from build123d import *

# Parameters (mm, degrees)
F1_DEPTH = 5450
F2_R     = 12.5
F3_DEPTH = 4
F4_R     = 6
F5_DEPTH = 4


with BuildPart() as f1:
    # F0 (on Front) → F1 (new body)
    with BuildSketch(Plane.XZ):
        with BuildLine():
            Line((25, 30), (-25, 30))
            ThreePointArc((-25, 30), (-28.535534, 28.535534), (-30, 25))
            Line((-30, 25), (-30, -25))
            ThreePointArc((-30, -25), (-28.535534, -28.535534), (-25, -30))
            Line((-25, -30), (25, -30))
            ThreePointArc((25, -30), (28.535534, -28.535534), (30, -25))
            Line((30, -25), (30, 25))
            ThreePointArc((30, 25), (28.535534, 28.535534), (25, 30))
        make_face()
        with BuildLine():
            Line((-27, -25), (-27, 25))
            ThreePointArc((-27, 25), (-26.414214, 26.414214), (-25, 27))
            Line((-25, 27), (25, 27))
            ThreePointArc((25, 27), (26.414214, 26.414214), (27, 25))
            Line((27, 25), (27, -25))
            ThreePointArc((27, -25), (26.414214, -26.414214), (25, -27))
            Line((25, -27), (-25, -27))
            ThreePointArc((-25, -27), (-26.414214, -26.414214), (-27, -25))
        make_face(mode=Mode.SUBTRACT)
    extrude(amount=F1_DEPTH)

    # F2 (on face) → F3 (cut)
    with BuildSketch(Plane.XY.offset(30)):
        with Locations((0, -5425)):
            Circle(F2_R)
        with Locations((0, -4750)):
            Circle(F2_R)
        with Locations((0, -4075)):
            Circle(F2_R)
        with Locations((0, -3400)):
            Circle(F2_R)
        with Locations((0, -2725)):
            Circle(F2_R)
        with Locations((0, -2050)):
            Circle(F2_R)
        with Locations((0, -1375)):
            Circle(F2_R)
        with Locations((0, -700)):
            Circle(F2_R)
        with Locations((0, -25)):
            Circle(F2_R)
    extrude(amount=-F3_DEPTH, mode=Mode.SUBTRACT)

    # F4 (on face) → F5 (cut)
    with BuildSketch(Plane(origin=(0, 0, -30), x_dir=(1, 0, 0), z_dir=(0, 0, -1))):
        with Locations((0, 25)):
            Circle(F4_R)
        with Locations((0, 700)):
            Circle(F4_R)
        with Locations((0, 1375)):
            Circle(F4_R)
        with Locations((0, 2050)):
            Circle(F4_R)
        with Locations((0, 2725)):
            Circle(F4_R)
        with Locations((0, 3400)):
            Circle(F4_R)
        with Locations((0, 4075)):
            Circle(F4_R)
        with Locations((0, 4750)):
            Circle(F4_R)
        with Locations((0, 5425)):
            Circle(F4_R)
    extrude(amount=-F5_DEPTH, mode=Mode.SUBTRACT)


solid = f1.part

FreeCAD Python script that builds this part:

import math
import FreeCAD as App
import Part
import Sketcher
from FreeCAD import Vector

doc = App.newDocument("Part")
params = doc.addObject("Spreadsheet::Sheet", "Params")
for row, (alias, value) in enumerate([
    ("sketch1_radius", "5 mm"),
    ("sketch1_radius2", "1.999999 mm"),
    ("sketch1_width", "50 mm"),
    ("pad1_length", "5450 mm"),
    ("sketch2_diameter", "25 mm"),
    ("pocket1_length", "4 mm"),
    ("sketch3_diameter", "12 mm"),
    ("pocket2_length", "4 mm"),
], start=1):
    params.set(f"A{row}", alias)
    params.set(f"B{row}", "=" + value)
    params.setAlias(f"B{row}", alias)

body = doc.addObject("PartDesign::Body", "Body")

# Sketch on XZ plane
sketch1 = body.newObject("Sketcher::SketchObject", "Sketch")
sketch1.AttachmentSupport = (doc.getObject("XZ_Plane"), [""])
sketch1.MapMode = "FlatFace"
sketch1.addGeometry([
    Part.LineSegment(Vector(25, 30, 0), Vector(-25, 30, 0)),  # 0
    Part.ArcOfCircle(Part.Circle(Vector(-25, 25, 0), Vector(0, 0, 1), 5), math.radians(90), math.radians(180)),  # 1
    Part.LineSegment(Vector(-30, 25, 0), Vector(-30, -25, 0)),  # 2
    Part.ArcOfCircle(Part.Circle(Vector(-25, -25, 0), Vector(0, 0, 1), 5), math.radians(180), math.radians(270)),  # 3
    Part.LineSegment(Vector(-25, -30, 0), Vector(25, -30, 0)),  # 4
    Part.ArcOfCircle(Part.Circle(Vector(25, -25, 0), Vector(0, 0, 1), 5), math.radians(-90), math.radians(0)),  # 5
    Part.LineSegment(Vector(30, -25, 0), Vector(30, 25, 0)),  # 6
    Part.ArcOfCircle(Part.Circle(Vector(25, 25, 0), Vector(0, 0, 1), 5), math.radians(0), math.radians(90)),  # 7
    Part.ArcOfCircle(Part.Circle(Vector(-25, -25, 0), Vector(0, 0, 1), 2), math.radians(180), math.radians(270)),  # 8
    Part.LineSegment(Vector(-27, -25, 0), Vector(-27, 25, 0)),  # 9
    Part.ArcOfCircle(Part.Circle(Vector(-25, 25, 0), Vector(0, 0, 1), 2), math.radians(90), math.radians(180)),  # 10
    Part.LineSegment(Vector(-25, 27, 0), Vector(25, 27, 0)),  # 11
    Part.ArcOfCircle(Part.Circle(Vector(25, 25, 0), Vector(0, 0, 1), 2), math.radians(0), math.radians(90)),  # 12
    Part.LineSegment(Vector(27, 25, 0), Vector(27, -25, 0)),  # 13
    Part.ArcOfCircle(Part.Circle(Vector(25, -25, 0), Vector(0, 0, 1), 2), math.radians(-90), math.radians(0)),  # 14
    Part.LineSegment(Vector(25, -27, 0), Vector(-25, -27, 0)),  # 15
], False)
sketch1.addConstraint([
    Sketcher.Constraint("Tangent", 0, 2, 1, 1),
    Sketcher.Constraint("Tangent", 1, 2, 2, 1),
    Sketcher.Constraint("Tangent", 2, 2, 3, 1),
    Sketcher.Constraint("Tangent", 3, 2, 4, 1),
    Sketcher.Constraint("Tangent", 4, 2, 5, 1),
    Sketcher.Constraint("Tangent", 5, 2, 6, 1),
    Sketcher.Constraint("Tangent", 6, 2, 7, 1),
    Sketcher.Constraint("Tangent", 7, 2, 0, 1),
    Sketcher.Constraint("Tangent", 8, 1, 9, 1),
    Sketcher.Constraint("Tangent", 9, 2, 10, 2),
    Sketcher.Constraint("Tangent", 10, 1, 11, 1),
    Sketcher.Constraint("Tangent", 11, 2, 12, 2),
    Sketcher.Constraint("Tangent", 12, 1, 13, 1),
    Sketcher.Constraint("Tangent", 13, 2, 14, 2),
    Sketcher.Constraint("Tangent", 14, 1, 15, 1),
    Sketcher.Constraint("Tangent", 15, 2, 8, 2),
    Sketcher.Constraint("Horizontal", 0),
    Sketcher.Constraint("Vertical", 2),
    Sketcher.Constraint("Horizontal", 4),
    Sketcher.Constraint("Vertical", 6),
    Sketcher.Constraint("Vertical", 9),
    Sketcher.Constraint("Horizontal", 11),
    Sketcher.Constraint("Vertical", 13),
    Sketcher.Constraint("Horizontal", 15),
    Sketcher.Constraint("Coincident", 8, 3, 3, 3),
    Sketcher.Constraint("Coincident", 10, 3, 1, 3),
    Sketcher.Constraint("Coincident", 12, 3, 7, 3),
    Sketcher.Constraint("Equal", 1, 3),
    Sketcher.Constraint("Equal", 3, 5),
    Sketcher.Constraint("Equal", 5, 7),
    Sketcher.Constraint("Equal", 12, 14),
    Sketcher.Constraint("Symmetric", 1, 3, 5, 3, -1, 1),
    Sketcher.Constraint("Equal", 15, 2),
    Sketcher.Constraint("Radius", 1, 5.0),
    Sketcher.Constraint("Radius", 8, 1.999999),
    Sketcher.Constraint("DistanceX", 0, 2, 0, 1, 50.0),
])
sketch1.setExpression("Constraints[33]", "Params.sketch1_radius")
sketch1.setExpression("Constraints[34]", "Params.sketch1_radius2")
sketch1.setExpression("Constraints[35]", "Params.sketch1_width")
pad1 = body.newObject("PartDesign::Pad", "Pad")
pad1.Profile = sketch1
pad1.setExpression("Length", "Params.pad1_length")

# Sketch on XY plane
sketch2 = body.newObject("Sketcher::SketchObject", "Sketch001")
sketch2.AttachmentSupport = (doc.getObject("XY_Plane"), [""])
sketch2.MapMode = "FlatFace"
sketch2.AttachmentOffset = App.Placement(Vector(0, 0, 30), App.Rotation())
sketch2.addGeometry([
    Part.Circle(Vector(0, -5425, 0), Vector(0, 0, 1), 12),  # 0
    Part.Circle(Vector(0, -4750, 0), Vector(0, 0, 1), 12),  # 1
    Part.Circle(Vector(0, -4075, 0), Vector(0, 0, 1), 12),  # 2
    Part.Circle(Vector(0, -3400, 0), Vector(0, 0, 1), 12),  # 3
    Part.Circle(Vector(0, -2725, 0), Vector(0, 0, 1), 12),  # 4
    Part.Circle(Vector(0, -2050, 0), Vector(0, 0, 1), 12),  # 5
    Part.Circle(Vector(0, -1375, 0), Vector(0, 0, 1), 12),  # 6
    Part.Circle(Vector(0, -700, 0), Vector(0, 0, 1), 12),  # 7
    Part.Circle(Vector(0, -25, 0), Vector(0, 0, 1), 12),  # 8
], False)
sketch2.addConstraint([
    Sketcher.Constraint("Equal", 0, 1),
    Sketcher.Constraint("Equal", 1, 2),
    Sketcher.Constraint("Equal", 2, 3),
    Sketcher.Constraint("Equal", 3, 4),
    Sketcher.Constraint("Equal", 4, 5),
    Sketcher.Constraint("Equal", 5, 6),
    Sketcher.Constraint("Equal", 6, 7),
    Sketcher.Constraint("Equal", 7, 8),
    Sketcher.Constraint("PointOnObject", 0, 3, -2),
    Sketcher.Constraint("PointOnObject", 1, 3, -2),
    Sketcher.Constraint("PointOnObject", 2, 3, -2),
    Sketcher.Constraint("PointOnObject", 3, 3, -2),
    Sketcher.Constraint("PointOnObject", 4, 3, -2),
    Sketcher.Constraint("PointOnObject", 5, 3, -2),
    Sketcher.Constraint("PointOnObject", 6, 3, -2),
    Sketcher.Constraint("PointOnObject", 7, 3, -2),
    Sketcher.Constraint("PointOnObject", 8, 3, -2),
    Sketcher.Constraint("Diameter", 0, 25.0),
    Sketcher.Constraint("DistanceY", 0, 3, -1, 1, 5425.0),
    Sketcher.Constraint("DistanceY", 1, 3, -1, 1, 4750.0),
    Sketcher.Constraint("DistanceY", 2, 3, -1, 1, 4075.0),
    Sketcher.Constraint("DistanceY", 3, 3, -1, 1, 3400.0),
    Sketcher.Constraint("DistanceY", 4, 3, -1, 1, 2725.0),
    Sketcher.Constraint("DistanceY", 5, 3, -1, 1, 2050.0),
    Sketcher.Constraint("DistanceY", 6, 3, -1, 1, 1375.0),
    Sketcher.Constraint("DistanceY", 7, 3, -1, 1, 700.0),
    Sketcher.Constraint("DistanceY", 8, 3, -1, 1, 25.0),
])
sketch2.setExpression("Constraints[17]", "Params.sketch2_diameter")
pocket1 = body.newObject("PartDesign::Pocket", "Pocket")
pocket1.Profile = sketch2
pocket1.setExpression("Length", "Params.pocket1_length")

# Sketch on XY plane
sketch3 = body.newObject("Sketcher::SketchObject", "Sketch002")
sketch3.AttachmentSupport = (doc.getObject("XY_Plane"), [""])
sketch3.MapMode = "FlatFace"
sketch3.AttachmentOffset = App.Placement(Vector(0, 0, -30), App.Rotation())
sketch3.addGeometry([
    Part.Circle(Vector(0, -25, 0), Vector(0, 0, 1), 6),  # 0
    Part.Circle(Vector(0, -700, 0), Vector(0, 0, 1), 6),  # 1
    Part.Circle(Vector(0, -1375, 0), Vector(0, 0, 1), 6),  # 2
    Part.Circle(Vector(0, -2050, 0), Vector(0, 0, 1), 6),  # 3
    Part.Circle(Vector(0, -2725, 0), Vector(0, 0, 1), 6),  # 4
    Part.Circle(Vector(0, -3400, 0), Vector(0, 0, 1), 6),  # 5
    Part.Circle(Vector(0, -4075, 0), Vector(0, 0, 1), 6),  # 6
    Part.Circle(Vector(0, -4750, 0), Vector(0, 0, 1), 6),  # 7
    Part.Circle(Vector(0, -5425, 0), Vector(0, 0, 1), 6),  # 8
], False)
sketch3.addConstraint([
    Sketcher.Constraint("Equal", 0, 1),
    Sketcher.Constraint("Equal", 1, 2),
    Sketcher.Constraint("Equal", 2, 3),
    Sketcher.Constraint("Equal", 3, 4),
    Sketcher.Constraint("Equal", 4, 5),
    Sketcher.Constraint("Equal", 5, 6),
    Sketcher.Constraint("Equal", 6, 7),
    Sketcher.Constraint("Equal", 7, 8),
    Sketcher.Constraint("PointOnObject", 0, 3, -2),
    Sketcher.Constraint("PointOnObject", 1, 3, -2),
    Sketcher.Constraint("PointOnObject", 2, 3, -2),
    Sketcher.Constraint("PointOnObject", 3, 3, -2),
    Sketcher.Constraint("PointOnObject", 4, 3, -2),
    Sketcher.Constraint("PointOnObject", 5, 3, -2),
    Sketcher.Constraint("PointOnObject", 6, 3, -2),
    Sketcher.Constraint("PointOnObject", 7, 3, -2),
    Sketcher.Constraint("PointOnObject", 8, 3, -2),
    Sketcher.Constraint("Diameter", 0, 12.0),
    Sketcher.Constraint("DistanceY", 0, 3, -1, 1, 25.0),
    Sketcher.Constraint("DistanceY", 1, 3, -1, 1, 700.0),
    Sketcher.Constraint("DistanceY", 2, 3, -1, 1, 1375.0),
    Sketcher.Constraint("DistanceY", 3, 3, -1, 1, 2050.0),
    Sketcher.Constraint("DistanceY", 4, 3, -1, 1, 2725.0),
    Sketcher.Constraint("DistanceY", 5, 3, -1, 1, 3400.0),
    Sketcher.Constraint("DistanceY", 6, 3, -1, 1, 4075.0),
    Sketcher.Constraint("DistanceY", 7, 3, -1, 1, 4750.0),
    Sketcher.Constraint("DistanceY", 8, 3, -1, 1, 5425.0),
])
sketch3.setExpression("Constraints[17]", "Params.sketch3_diameter")
pocket2 = body.newObject("PartDesign::Pocket", "Pocket001")
pocket2.Profile = sketch3
pocket2.setExpression("Length", "Params.pocket2_length")
pocket2.Reversed = True

doc.recompute()
